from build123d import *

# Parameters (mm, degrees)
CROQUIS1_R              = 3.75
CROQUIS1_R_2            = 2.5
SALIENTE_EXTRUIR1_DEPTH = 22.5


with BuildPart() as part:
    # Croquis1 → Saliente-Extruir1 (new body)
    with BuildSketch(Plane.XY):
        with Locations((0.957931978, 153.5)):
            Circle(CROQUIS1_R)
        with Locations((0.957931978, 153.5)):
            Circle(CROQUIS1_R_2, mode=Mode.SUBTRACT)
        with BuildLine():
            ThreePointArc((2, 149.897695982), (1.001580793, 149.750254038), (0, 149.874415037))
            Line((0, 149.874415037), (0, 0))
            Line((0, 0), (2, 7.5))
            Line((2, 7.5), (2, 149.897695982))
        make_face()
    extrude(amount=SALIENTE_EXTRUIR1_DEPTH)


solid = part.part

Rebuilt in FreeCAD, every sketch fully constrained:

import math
import FreeCAD as App
import Part
import Sketcher
from FreeCAD import Vector

doc = App.newDocument("Part")
body = doc.addObject("PartDesign::Body", "Body")

# Sketch on XY plane
sketch1 = doc.addObject("Sketcher::SketchObject", "Sketch")
body.addObject(sketch1)
sketch1.AttachmentSupport = (doc.XY_Plane, [""])
sketch1.MapMode = "FlatFace"
sketch1.addGeometry(Part.LineSegment(Vector(0, 149.874415, 0), Vector(0, 0, 0)), False)
sketch1.addGeometry(Part.LineSegment(Vector(0, 0, 0), Vector(2, 7.5, 0)), False)
sketch1.addGeometry(Part.LineSegment(Vector(2, 7.5, 0), Vector(2, 149.897696, 0)), False)
sketch1.addGeometry(Part.ArcOfCircle(Part.Circle(Vector(0.957932, 153.5, 0), Vector(0, 0, 1), 3.75), math.radians(-73.865996), math.radians(255.199836)), False)
sketch1.addGeometry(Part.Circle(Vector(0.957932, 153.5, 0), Vector(0, 0, 1), 2.5), False)
sketch1.addConstraint(Sketcher.Constraint("Coincident", 0, 2, 1, 1))
sketch1.addConstraint(Sketcher.Constraint("Coincident", 1, 2, 2, 1))
sketch1.addConstraint(Sketcher.Constraint("Coincident", 2, 2, 3, 1))
sketch1.addConstraint(Sketcher.Constraint("Coincident", 3, 2, 0, 1))
sketch1.addConstraint(Sketcher.Constraint("Vertical", 0))
sketch1.addConstraint(Sketcher.Constraint("Vertical", 2))
sketch1.addConstraint(Sketcher.Constraint("Coincident", 0, 2, -1, 1))
sketch1.addConstraint(Sketcher.Constraint("Coincident", 4, 3, 3, 3))
sketch1.addConstraint(Sketcher.Constraint("Diameter", 4, 5.0))
sketch1.addConstraint(Sketcher.Constraint("Radius", 3, 3.75))
sketch1.addConstraint(Sketcher.Constraint("DistanceX", -1, 1, 1, 2, 2.0))
sketch1.addConstraint(Sketcher.Constraint("DistanceY", 1, 2, 3, 3, 146.0))
sketch1.addConstraint(Sketcher.Constraint("DistanceY", -1, 1, 3, 3, 153.5))
sketch1.addConstraint(Sketcher.Constraint("DistanceY", 0, 2, 0, 1, 149.874415))
pad1 = doc.addObject("PartDesign::Pad", "Pad")
body.addObject(pad1)
pad1.Profile = sketch1
pad1.Length = 22.5

doc.recompute()
